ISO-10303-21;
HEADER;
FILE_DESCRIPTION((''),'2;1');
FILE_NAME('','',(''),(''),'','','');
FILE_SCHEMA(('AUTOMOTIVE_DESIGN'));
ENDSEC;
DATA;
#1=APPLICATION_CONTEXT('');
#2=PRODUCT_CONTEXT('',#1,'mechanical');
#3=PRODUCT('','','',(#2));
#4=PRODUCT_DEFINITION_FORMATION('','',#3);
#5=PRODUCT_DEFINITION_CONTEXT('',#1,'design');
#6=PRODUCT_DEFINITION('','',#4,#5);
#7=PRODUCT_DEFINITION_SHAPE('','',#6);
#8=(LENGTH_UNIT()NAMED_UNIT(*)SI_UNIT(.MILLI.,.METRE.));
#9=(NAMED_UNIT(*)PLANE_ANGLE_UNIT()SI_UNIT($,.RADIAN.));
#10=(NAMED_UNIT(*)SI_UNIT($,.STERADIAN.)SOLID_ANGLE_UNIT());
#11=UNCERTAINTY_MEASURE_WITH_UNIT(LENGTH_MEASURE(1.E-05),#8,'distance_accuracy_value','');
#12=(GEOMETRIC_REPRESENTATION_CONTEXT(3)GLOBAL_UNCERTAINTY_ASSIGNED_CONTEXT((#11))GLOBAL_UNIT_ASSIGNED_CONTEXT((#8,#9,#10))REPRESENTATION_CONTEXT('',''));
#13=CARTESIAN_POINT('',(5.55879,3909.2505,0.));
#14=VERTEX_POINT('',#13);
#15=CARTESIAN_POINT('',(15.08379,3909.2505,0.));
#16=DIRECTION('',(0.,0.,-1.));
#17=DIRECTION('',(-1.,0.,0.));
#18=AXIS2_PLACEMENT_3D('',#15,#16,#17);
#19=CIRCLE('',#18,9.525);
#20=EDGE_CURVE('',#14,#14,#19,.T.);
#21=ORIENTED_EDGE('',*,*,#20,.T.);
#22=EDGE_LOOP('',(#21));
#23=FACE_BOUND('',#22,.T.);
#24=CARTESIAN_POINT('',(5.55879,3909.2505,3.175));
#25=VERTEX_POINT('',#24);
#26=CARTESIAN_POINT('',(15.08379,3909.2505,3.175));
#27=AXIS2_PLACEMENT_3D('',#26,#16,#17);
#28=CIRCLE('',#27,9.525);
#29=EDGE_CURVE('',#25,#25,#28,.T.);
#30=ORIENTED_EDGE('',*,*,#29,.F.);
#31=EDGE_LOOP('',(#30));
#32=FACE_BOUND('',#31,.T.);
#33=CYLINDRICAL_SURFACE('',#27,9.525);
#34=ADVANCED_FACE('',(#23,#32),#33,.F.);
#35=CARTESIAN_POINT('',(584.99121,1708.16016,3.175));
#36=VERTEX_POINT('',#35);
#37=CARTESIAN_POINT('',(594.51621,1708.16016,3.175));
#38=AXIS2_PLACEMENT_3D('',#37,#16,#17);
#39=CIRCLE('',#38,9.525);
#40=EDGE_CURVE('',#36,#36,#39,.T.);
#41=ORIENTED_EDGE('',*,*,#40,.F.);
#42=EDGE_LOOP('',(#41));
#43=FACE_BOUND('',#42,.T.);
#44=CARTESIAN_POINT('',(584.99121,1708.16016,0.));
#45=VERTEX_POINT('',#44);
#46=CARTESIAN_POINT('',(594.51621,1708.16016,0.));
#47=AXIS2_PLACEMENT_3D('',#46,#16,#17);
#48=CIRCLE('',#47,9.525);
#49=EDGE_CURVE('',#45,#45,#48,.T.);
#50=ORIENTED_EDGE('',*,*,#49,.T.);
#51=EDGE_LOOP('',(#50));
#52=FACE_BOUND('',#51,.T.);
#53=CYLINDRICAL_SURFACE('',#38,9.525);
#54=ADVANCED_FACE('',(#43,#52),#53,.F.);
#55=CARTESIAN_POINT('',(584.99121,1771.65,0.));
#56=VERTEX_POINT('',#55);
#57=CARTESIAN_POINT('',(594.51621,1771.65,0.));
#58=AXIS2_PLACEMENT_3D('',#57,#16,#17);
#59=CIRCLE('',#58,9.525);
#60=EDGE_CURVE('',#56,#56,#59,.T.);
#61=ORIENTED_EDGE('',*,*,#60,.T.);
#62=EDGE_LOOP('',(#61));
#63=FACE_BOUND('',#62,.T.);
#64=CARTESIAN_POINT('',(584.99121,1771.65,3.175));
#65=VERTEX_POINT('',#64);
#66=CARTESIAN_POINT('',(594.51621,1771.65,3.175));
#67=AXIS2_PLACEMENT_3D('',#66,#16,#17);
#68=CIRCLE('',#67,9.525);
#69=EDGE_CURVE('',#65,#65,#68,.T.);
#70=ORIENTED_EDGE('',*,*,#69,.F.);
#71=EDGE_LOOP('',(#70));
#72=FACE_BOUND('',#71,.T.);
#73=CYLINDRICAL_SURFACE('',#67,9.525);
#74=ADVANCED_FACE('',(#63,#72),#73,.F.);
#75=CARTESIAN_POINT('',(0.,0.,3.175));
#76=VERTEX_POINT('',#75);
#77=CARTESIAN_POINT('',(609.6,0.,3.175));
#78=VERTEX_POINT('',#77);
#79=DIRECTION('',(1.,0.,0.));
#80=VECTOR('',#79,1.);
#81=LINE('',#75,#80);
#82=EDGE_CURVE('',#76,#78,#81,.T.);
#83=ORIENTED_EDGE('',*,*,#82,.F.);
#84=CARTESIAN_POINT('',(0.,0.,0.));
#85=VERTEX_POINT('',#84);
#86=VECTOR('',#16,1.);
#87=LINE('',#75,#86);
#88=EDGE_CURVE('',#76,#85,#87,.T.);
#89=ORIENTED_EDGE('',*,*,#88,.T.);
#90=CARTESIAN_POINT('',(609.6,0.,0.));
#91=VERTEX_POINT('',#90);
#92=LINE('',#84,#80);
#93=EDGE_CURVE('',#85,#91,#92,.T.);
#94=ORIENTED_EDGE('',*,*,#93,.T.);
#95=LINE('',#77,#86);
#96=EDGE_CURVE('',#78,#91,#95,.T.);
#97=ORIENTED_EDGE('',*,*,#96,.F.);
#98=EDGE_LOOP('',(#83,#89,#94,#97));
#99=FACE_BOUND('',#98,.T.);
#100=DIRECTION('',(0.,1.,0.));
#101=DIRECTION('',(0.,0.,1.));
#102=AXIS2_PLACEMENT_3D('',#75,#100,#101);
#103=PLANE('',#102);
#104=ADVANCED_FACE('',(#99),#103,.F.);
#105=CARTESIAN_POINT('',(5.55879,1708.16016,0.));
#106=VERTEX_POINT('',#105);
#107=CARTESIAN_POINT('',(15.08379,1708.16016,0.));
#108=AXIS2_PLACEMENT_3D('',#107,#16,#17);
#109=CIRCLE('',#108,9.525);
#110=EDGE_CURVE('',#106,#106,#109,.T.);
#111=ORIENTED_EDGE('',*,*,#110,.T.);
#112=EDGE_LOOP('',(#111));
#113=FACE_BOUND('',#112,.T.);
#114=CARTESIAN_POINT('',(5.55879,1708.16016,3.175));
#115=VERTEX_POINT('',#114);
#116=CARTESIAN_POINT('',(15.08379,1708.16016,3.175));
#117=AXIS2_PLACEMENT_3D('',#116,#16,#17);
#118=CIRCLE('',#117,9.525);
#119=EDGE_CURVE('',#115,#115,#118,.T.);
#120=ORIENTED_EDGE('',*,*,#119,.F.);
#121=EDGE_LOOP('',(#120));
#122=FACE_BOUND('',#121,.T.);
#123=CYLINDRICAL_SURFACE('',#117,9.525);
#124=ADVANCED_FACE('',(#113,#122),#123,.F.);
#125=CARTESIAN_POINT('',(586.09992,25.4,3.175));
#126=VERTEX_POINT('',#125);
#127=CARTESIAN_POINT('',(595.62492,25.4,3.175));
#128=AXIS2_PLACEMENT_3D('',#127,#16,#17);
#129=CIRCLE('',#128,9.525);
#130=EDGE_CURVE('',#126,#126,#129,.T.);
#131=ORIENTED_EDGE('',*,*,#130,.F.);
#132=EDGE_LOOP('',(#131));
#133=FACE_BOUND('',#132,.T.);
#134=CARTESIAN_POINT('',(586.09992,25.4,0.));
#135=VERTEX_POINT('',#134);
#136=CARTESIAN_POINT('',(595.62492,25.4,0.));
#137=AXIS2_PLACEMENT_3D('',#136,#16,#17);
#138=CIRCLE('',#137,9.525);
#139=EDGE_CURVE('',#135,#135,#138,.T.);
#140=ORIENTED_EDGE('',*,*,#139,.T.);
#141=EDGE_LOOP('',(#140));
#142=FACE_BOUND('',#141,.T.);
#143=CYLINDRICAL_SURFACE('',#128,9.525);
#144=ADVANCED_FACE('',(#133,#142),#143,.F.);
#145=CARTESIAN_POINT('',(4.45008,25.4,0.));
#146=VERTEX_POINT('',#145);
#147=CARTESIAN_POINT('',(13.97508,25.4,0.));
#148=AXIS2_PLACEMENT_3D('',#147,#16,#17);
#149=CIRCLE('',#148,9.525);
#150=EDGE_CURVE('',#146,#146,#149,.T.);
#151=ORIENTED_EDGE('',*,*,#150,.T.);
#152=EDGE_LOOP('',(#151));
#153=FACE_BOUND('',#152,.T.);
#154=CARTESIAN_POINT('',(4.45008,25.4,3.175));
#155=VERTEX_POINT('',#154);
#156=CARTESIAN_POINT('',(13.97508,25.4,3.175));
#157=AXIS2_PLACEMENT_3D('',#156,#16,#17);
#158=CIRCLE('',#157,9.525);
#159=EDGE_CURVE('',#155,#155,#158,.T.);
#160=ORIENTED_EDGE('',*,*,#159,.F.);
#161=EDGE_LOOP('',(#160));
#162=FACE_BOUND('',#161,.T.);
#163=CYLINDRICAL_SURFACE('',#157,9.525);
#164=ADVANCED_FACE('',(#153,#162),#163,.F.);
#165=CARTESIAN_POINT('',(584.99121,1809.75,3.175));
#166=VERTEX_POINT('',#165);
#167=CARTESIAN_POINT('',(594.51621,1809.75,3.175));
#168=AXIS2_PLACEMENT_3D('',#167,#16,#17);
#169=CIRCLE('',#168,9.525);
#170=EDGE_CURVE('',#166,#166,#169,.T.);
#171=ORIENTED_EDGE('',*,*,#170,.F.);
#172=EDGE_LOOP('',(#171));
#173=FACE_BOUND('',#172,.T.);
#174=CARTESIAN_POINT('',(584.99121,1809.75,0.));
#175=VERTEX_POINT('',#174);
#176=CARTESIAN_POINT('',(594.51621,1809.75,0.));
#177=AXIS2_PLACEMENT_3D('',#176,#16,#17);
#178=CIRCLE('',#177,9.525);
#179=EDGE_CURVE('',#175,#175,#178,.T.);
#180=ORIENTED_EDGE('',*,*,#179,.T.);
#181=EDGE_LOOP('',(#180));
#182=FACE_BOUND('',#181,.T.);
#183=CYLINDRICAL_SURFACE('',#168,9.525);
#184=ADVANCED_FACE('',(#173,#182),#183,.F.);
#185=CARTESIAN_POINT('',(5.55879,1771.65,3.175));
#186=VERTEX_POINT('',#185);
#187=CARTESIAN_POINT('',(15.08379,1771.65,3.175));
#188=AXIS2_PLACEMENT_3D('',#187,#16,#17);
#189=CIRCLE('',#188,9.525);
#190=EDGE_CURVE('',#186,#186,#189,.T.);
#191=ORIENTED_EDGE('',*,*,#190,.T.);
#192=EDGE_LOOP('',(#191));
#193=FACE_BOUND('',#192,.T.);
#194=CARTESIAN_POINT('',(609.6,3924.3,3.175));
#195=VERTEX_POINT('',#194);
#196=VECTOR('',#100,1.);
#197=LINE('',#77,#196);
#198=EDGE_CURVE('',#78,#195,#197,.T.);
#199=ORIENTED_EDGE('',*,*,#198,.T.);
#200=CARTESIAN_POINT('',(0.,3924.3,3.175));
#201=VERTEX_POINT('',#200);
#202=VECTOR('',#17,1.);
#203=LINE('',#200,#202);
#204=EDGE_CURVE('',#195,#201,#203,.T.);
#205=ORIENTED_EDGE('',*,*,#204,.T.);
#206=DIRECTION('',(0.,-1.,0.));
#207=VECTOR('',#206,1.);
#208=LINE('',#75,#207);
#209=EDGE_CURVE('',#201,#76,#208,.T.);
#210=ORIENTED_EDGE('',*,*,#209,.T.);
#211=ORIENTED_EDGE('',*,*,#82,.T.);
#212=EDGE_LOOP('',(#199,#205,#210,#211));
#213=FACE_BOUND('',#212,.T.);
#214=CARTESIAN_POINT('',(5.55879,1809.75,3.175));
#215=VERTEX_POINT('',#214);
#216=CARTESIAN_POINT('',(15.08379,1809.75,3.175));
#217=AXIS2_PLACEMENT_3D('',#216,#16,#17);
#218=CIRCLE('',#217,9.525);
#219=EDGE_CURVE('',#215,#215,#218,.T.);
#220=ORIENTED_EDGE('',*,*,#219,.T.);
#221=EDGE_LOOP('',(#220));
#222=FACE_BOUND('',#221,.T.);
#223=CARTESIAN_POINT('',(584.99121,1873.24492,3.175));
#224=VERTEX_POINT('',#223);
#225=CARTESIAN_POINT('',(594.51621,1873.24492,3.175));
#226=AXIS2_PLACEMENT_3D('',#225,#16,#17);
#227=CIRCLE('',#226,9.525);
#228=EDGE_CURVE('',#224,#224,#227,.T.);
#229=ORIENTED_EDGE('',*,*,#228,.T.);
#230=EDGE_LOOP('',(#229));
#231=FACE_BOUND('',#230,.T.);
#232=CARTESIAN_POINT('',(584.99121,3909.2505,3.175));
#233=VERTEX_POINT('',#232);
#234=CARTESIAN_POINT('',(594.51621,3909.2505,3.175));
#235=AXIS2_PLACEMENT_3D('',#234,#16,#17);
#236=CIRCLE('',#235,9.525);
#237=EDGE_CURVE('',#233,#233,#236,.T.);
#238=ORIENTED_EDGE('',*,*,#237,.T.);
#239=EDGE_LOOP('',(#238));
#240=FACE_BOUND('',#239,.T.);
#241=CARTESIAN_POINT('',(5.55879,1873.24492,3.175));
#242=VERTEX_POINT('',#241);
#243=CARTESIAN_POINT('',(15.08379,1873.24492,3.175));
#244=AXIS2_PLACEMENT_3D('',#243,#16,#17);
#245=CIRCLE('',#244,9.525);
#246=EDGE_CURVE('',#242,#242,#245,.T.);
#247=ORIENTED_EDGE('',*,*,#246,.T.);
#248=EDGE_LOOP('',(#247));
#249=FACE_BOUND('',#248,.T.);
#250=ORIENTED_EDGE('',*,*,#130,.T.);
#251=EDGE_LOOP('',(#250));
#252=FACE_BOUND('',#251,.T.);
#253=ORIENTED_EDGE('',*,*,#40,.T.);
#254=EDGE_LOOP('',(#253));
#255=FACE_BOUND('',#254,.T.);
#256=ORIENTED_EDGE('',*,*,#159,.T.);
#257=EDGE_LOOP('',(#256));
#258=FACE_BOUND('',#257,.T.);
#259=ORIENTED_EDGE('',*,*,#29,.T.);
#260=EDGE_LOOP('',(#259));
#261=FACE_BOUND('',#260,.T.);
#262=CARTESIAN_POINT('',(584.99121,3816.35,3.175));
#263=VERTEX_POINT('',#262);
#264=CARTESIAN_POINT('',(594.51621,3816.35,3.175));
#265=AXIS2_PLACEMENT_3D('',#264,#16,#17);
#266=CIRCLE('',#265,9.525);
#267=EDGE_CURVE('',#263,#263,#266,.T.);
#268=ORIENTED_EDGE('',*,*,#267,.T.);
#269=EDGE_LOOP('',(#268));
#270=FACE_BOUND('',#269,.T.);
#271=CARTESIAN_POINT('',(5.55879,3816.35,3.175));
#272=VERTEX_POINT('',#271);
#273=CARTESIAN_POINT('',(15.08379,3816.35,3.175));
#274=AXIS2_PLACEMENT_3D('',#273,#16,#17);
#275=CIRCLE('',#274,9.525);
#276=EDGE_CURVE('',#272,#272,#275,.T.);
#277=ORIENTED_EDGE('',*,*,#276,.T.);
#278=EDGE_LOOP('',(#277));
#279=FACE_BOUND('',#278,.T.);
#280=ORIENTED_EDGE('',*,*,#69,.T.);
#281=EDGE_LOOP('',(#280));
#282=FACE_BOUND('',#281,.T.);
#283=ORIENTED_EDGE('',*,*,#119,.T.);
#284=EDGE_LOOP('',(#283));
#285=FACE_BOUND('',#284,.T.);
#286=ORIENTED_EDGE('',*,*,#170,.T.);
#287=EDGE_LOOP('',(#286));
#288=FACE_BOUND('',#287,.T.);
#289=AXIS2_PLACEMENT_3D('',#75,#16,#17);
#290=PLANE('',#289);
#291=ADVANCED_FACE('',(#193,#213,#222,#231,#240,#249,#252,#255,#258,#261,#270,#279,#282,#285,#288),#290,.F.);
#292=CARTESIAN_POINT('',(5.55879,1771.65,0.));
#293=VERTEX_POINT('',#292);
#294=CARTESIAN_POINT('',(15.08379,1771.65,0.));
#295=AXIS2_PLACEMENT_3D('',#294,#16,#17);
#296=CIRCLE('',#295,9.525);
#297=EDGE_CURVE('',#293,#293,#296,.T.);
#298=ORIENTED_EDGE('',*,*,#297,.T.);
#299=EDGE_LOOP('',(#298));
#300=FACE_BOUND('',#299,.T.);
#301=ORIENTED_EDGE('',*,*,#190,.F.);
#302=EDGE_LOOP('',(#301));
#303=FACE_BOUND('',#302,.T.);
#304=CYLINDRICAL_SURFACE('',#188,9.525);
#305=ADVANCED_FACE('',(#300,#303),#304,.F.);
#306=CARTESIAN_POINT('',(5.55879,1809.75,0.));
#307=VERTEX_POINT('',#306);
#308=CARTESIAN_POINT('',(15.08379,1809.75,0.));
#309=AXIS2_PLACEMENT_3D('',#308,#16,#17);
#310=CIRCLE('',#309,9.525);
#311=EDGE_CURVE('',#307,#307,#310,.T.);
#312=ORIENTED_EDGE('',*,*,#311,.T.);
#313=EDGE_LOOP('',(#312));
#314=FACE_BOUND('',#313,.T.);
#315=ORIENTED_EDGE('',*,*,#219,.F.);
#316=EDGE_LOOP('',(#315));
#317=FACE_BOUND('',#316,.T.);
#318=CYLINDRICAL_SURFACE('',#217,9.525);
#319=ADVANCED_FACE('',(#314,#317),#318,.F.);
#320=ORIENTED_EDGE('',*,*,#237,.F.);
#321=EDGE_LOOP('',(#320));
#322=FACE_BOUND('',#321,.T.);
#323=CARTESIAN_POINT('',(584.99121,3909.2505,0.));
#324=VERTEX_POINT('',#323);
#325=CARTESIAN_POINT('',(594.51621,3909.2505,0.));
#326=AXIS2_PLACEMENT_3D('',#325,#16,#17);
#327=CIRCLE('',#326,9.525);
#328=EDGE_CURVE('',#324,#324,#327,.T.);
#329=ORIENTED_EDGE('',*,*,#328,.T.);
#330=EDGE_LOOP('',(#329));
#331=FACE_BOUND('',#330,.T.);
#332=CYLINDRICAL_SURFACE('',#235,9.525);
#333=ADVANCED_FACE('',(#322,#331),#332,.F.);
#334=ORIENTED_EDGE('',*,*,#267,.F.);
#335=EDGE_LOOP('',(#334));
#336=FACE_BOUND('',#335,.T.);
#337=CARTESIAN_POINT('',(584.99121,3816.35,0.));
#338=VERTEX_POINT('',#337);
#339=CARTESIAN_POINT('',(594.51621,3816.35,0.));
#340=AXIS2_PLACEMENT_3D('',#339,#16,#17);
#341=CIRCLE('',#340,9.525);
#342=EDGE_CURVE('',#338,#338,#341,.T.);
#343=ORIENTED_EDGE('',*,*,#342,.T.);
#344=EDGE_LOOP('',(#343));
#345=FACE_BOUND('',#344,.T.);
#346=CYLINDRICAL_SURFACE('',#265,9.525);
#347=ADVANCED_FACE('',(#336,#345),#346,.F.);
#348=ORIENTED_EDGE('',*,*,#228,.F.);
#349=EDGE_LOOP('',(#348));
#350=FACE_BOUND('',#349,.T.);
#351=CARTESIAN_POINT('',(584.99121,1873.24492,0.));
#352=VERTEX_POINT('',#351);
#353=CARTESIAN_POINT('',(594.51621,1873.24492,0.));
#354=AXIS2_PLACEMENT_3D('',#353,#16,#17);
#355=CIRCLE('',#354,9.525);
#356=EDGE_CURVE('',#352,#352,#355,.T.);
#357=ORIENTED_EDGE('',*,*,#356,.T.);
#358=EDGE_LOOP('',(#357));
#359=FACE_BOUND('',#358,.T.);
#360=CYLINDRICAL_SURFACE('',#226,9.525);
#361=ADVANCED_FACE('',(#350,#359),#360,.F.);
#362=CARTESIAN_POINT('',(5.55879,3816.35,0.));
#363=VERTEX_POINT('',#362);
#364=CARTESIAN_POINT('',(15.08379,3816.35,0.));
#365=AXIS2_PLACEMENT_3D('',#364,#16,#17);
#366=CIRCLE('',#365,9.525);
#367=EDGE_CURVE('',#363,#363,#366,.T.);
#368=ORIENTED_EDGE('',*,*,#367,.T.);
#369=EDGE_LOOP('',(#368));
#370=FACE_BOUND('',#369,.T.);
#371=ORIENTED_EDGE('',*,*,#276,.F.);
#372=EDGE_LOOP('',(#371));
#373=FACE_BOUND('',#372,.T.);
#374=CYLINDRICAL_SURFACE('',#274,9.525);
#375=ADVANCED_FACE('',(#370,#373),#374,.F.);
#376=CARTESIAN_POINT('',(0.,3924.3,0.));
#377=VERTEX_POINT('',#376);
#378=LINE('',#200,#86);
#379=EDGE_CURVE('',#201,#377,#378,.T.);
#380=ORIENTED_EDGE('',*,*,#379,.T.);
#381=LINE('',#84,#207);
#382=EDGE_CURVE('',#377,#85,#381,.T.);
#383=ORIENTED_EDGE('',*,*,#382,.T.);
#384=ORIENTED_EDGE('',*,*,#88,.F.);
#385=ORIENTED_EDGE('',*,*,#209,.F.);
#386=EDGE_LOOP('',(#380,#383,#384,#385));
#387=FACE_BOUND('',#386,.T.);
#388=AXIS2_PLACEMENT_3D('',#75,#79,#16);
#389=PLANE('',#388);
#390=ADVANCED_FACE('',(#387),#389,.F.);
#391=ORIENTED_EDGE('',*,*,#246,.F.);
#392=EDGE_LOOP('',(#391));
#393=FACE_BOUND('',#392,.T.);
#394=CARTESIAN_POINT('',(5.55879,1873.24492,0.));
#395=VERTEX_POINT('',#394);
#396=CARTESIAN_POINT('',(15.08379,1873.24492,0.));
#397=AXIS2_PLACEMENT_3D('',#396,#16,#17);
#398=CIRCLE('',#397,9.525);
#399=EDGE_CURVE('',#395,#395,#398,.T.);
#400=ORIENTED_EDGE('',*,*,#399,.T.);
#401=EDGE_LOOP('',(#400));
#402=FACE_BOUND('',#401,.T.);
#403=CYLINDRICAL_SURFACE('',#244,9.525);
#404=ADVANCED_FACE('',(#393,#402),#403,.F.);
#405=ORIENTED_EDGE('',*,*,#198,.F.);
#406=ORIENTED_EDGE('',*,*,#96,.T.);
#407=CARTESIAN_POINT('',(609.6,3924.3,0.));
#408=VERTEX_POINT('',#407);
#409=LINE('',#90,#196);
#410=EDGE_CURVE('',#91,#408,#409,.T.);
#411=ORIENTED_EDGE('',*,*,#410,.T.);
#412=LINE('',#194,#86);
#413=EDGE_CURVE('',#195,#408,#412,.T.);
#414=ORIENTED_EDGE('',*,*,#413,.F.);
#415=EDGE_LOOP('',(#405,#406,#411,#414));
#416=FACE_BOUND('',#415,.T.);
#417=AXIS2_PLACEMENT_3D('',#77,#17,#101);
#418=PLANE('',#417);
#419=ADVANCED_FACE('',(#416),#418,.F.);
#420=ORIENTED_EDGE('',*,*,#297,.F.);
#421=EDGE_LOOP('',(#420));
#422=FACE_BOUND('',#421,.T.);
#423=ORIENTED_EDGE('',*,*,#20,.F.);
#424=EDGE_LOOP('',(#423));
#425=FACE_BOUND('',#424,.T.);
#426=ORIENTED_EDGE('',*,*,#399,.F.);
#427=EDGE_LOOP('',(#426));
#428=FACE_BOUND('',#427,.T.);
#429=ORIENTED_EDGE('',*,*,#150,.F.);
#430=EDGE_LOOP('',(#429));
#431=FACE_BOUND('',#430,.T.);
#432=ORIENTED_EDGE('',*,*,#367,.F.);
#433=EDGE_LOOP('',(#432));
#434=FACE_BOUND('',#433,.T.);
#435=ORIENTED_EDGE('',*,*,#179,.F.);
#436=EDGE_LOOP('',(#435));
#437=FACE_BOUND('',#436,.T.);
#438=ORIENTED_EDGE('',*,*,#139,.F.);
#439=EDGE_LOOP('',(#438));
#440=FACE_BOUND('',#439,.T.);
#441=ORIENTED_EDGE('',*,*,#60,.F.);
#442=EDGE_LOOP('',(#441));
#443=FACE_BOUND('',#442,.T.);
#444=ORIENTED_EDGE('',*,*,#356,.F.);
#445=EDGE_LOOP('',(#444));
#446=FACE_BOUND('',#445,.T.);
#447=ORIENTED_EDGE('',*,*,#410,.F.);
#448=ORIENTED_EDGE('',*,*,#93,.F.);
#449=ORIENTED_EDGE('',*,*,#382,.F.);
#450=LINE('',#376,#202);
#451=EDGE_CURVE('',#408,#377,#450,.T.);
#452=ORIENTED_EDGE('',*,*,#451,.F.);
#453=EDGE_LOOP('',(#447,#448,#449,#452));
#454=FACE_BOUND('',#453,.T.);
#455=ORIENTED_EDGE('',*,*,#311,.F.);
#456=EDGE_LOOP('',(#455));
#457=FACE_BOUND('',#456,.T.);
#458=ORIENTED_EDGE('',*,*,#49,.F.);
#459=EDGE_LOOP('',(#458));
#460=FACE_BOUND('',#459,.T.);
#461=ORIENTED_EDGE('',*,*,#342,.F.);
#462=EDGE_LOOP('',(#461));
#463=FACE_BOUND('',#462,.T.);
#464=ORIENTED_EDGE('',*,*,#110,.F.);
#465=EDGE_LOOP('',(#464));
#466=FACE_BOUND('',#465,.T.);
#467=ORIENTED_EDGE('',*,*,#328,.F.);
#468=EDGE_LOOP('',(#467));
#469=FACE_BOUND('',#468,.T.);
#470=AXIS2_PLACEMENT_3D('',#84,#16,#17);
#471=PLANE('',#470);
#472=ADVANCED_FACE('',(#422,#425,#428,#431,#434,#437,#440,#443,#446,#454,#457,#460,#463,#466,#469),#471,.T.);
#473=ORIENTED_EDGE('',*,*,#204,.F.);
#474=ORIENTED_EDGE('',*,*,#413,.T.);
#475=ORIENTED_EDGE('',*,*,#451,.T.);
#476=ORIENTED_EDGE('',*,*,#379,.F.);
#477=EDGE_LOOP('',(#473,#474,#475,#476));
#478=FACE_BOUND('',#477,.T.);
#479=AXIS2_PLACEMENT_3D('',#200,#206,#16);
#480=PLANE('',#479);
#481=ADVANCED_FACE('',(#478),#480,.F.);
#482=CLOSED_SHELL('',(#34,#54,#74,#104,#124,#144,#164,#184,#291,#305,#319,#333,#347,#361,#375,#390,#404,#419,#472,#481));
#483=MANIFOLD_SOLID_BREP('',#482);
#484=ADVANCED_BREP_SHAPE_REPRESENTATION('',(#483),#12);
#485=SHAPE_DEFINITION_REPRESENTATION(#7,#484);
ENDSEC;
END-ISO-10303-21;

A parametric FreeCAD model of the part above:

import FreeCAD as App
import Part
import Sketcher

V = App.Vector
Q = App.Units.Quantity

doc = App.newDocument("Part")
body = doc.addObject("PartDesign::Body", "Body")

sketch1 = doc.addObject("Sketcher::SketchObject", "Sketch")
body.addObject(sketch1)
sketch1.AttachmentSupport = (doc.XY_Plane, [""])
sketch1.MapMode = "FlatFace"
sketch1.addGeometry([
    Part.LineSegment(V(0, 3924, 0), V(0, 0, 0)),
    Part.LineSegment(V(0, 0, 0), V(610, 0, 0)),
    Part.LineSegment(V(610, 0, 0), V(610, 3924, 0)),
    Part.LineSegment(V(610, 3924, 0), V(0, 3924, 0)),
], False)
sketch1.addConstraint([
    Sketcher.Constraint("Coincident", 0, 2, 1, 1),
    Sketcher.Constraint("Coincident", 1, 2, 2, 1),
    Sketcher.Constraint("Coincident", 2, 2, 3, 1),
    Sketcher.Constraint("Coincident", 3, 2, 0, 1),
    Sketcher.Constraint("Vertical", 0),
    Sketcher.Constraint("Horizontal", 1),
    Sketcher.Constraint("Vertical", 2),
    Sketcher.Constraint("Horizontal", 3),
    Sketcher.Constraint("Coincident", 0, 2, -1, 1),
    Sketcher.Constraint("DistanceX", 1, 1, 1, 2, Q("24 in")),
    Sketcher.Constraint("DistanceY", 0, 2, 0, 1, Q("154.5 in")),
])
pad1 = doc.addObject("PartDesign::Pad", "Pad")
body.addObject(pad1)
pad1.Profile = sketch1
pad1.Length = Q("0.125 in")

sketch2 = doc.addObject("Sketcher::SketchObject", "Sketch001")
body.addObject(sketch2)
sketch2.AttachmentSupport = (doc.XY_Plane, [""])
sketch2.MapMode = "FlatFace"
sketch2.addGeometry([
    Part.Circle(V(595, 3909, 0), V(0, 0, 1), 10),
    Part.Circle(V(595, 3816, 0), V(0, 0, 1), 10),
    Part.Circle(V(595, 1873, 0), V(0, 0, 1), 10),
    Part.Circle(V(595, 1810, 0), V(0, 0, 1), 10),
    Part.Circle(V(595, 1772, 0), V(0, 0, 1), 10),
    Part.Circle(V(595, 1708, 0), V(0, 0, 1), 10),
    Part.Circle(V(596, 25, 0), V(0, 0, 1), 10),
    Part.Circle(V(15, 3909, 0), V(0, 0, 1), 10),
    Part.Circle(V(15, 3816, 0), V(0, 0, 1), 10),
    Part.Circle(V(15, 1873, 0), V(0, 0, 1), 10),
    Part.Circle(V(15, 1810, 0), V(0, 0, 1), 10),
    Part.Circle(V(15, 1772, 0), V(0, 0, 1), 10),
    Part.Circle(V(15, 1708, 0), V(0, 0, 1), 10),
    Part.Circle(V(14, 25, 0), V(0, 0, 1), 10),
], False)
sketch2.addConstraint([
    Sketcher.Constraint("Equal", 0, 1),
    Sketcher.Constraint("Equal", 1, 2),
    Sketcher.Constraint("Equal", 2, 3),
    Sketcher.Constraint("Equal", 3, 4),
    Sketcher.Constraint("Equal", 4, 5),
    Sketcher.Constraint("Equal", 5, 6),
    Sketcher.Constraint("Equal", 6, 7),
    Sketcher.Constraint("Equal", 7, 8),
    Sketcher.Constraint("Equal", 8, 9),
    Sketcher.Constraint("Equal", 9, 10),
    Sketcher.Constraint("Equal", 10, 11),
    Sketcher.Constraint("Equal", 11, 12),
    Sketcher.Constraint("Equal", 12, 13),
    Sketcher.Constraint("Horizontal", 0, 3, 7, 3),
    Sketcher.Constraint("Horizontal", 1, 3, 8, 3),
    Sketcher.Constraint("Horizontal", 2, 3, 9, 3),
    Sketcher.Constraint("Horizontal", 3, 3, 10, 3),
    Sketcher.Constraint("Horizontal", 4, 3, 11, 3),
    Sketcher.Constraint("Horizontal", 5, 3, 12, 3),
    Sketcher.Constraint("Horizontal", 6, 3, 13, 3),
    Sketcher.Constraint("Vertical", 0, 3, 1, 3),
    Sketcher.Constraint("Vertical", 1, 3, 2, 3),
    Sketcher.Constraint("Vertical", 2, 3, 3, 3),
    Sketcher.Constraint("Vertical", 3, 3, 4, 3),
    Sketcher.Constraint("Vertical", 4, 3, 5, 3),
    Sketcher.Constraint("Vertical", 7, 3, 8, 3),
    Sketcher.Constraint("Vertical", 8, 3, 9, 3),
    Sketcher.Constraint("Vertical", 9, 3, 10, 3),
    Sketcher.Constraint("Vertical", 10, 3, 11, 3),
    Sketcher.Constraint("Vertical", 11, 3, 12, 3),
    Sketcher.Constraint("Diameter", 0, Q("0.75 in")),
    Sketcher.Constraint("DistanceY", -1, 1, 6, 3, Q("1 in")),
    Sketcher.Constraint("DistanceY", 3, 3, 1, 3, Q("79 in")),
    Sketcher.Constraint("DistanceY", 4, 3, 3, 3, Q("1.5 in")),
    Sketcher.Constraint("DistanceY", -1, 1, 1, 3, Q("150.25 in")),
    Sketcher.Constraint("DistanceY", -1, 1, 0, 3, Q("153.9075 in")),
    Sketcher.Constraint("DistanceY", -1, 1, 2, 3, Q("73.7498 in")),
    Sketcher.Constraint("DistanceY", -1, 1, 5, 3, Q("67.2504 in")),
    Sketcher.Constraint("DistanceX", -1, 1, 6, 3, Q("23.4498 in")),
    Sketcher.Constraint("DistanceX", -1, 1, 13, 3, Q("0.5502 in")),
    Sketcher.Constraint("DistanceX", 7, 3, 0, 3, Q("22.8123 in")),
    Sketcher.Constraint("DistanceX", -1, 1, 0, 3, 594.51621),
])
pocket1 = doc.addObject("PartDesign::Pocket", "Pocket")
body.addObject(pocket1)
pocket1.Profile = sketch2
pocket1.Type = "ThroughAll"
pocket1.Reversed = True

doc.recompute()
